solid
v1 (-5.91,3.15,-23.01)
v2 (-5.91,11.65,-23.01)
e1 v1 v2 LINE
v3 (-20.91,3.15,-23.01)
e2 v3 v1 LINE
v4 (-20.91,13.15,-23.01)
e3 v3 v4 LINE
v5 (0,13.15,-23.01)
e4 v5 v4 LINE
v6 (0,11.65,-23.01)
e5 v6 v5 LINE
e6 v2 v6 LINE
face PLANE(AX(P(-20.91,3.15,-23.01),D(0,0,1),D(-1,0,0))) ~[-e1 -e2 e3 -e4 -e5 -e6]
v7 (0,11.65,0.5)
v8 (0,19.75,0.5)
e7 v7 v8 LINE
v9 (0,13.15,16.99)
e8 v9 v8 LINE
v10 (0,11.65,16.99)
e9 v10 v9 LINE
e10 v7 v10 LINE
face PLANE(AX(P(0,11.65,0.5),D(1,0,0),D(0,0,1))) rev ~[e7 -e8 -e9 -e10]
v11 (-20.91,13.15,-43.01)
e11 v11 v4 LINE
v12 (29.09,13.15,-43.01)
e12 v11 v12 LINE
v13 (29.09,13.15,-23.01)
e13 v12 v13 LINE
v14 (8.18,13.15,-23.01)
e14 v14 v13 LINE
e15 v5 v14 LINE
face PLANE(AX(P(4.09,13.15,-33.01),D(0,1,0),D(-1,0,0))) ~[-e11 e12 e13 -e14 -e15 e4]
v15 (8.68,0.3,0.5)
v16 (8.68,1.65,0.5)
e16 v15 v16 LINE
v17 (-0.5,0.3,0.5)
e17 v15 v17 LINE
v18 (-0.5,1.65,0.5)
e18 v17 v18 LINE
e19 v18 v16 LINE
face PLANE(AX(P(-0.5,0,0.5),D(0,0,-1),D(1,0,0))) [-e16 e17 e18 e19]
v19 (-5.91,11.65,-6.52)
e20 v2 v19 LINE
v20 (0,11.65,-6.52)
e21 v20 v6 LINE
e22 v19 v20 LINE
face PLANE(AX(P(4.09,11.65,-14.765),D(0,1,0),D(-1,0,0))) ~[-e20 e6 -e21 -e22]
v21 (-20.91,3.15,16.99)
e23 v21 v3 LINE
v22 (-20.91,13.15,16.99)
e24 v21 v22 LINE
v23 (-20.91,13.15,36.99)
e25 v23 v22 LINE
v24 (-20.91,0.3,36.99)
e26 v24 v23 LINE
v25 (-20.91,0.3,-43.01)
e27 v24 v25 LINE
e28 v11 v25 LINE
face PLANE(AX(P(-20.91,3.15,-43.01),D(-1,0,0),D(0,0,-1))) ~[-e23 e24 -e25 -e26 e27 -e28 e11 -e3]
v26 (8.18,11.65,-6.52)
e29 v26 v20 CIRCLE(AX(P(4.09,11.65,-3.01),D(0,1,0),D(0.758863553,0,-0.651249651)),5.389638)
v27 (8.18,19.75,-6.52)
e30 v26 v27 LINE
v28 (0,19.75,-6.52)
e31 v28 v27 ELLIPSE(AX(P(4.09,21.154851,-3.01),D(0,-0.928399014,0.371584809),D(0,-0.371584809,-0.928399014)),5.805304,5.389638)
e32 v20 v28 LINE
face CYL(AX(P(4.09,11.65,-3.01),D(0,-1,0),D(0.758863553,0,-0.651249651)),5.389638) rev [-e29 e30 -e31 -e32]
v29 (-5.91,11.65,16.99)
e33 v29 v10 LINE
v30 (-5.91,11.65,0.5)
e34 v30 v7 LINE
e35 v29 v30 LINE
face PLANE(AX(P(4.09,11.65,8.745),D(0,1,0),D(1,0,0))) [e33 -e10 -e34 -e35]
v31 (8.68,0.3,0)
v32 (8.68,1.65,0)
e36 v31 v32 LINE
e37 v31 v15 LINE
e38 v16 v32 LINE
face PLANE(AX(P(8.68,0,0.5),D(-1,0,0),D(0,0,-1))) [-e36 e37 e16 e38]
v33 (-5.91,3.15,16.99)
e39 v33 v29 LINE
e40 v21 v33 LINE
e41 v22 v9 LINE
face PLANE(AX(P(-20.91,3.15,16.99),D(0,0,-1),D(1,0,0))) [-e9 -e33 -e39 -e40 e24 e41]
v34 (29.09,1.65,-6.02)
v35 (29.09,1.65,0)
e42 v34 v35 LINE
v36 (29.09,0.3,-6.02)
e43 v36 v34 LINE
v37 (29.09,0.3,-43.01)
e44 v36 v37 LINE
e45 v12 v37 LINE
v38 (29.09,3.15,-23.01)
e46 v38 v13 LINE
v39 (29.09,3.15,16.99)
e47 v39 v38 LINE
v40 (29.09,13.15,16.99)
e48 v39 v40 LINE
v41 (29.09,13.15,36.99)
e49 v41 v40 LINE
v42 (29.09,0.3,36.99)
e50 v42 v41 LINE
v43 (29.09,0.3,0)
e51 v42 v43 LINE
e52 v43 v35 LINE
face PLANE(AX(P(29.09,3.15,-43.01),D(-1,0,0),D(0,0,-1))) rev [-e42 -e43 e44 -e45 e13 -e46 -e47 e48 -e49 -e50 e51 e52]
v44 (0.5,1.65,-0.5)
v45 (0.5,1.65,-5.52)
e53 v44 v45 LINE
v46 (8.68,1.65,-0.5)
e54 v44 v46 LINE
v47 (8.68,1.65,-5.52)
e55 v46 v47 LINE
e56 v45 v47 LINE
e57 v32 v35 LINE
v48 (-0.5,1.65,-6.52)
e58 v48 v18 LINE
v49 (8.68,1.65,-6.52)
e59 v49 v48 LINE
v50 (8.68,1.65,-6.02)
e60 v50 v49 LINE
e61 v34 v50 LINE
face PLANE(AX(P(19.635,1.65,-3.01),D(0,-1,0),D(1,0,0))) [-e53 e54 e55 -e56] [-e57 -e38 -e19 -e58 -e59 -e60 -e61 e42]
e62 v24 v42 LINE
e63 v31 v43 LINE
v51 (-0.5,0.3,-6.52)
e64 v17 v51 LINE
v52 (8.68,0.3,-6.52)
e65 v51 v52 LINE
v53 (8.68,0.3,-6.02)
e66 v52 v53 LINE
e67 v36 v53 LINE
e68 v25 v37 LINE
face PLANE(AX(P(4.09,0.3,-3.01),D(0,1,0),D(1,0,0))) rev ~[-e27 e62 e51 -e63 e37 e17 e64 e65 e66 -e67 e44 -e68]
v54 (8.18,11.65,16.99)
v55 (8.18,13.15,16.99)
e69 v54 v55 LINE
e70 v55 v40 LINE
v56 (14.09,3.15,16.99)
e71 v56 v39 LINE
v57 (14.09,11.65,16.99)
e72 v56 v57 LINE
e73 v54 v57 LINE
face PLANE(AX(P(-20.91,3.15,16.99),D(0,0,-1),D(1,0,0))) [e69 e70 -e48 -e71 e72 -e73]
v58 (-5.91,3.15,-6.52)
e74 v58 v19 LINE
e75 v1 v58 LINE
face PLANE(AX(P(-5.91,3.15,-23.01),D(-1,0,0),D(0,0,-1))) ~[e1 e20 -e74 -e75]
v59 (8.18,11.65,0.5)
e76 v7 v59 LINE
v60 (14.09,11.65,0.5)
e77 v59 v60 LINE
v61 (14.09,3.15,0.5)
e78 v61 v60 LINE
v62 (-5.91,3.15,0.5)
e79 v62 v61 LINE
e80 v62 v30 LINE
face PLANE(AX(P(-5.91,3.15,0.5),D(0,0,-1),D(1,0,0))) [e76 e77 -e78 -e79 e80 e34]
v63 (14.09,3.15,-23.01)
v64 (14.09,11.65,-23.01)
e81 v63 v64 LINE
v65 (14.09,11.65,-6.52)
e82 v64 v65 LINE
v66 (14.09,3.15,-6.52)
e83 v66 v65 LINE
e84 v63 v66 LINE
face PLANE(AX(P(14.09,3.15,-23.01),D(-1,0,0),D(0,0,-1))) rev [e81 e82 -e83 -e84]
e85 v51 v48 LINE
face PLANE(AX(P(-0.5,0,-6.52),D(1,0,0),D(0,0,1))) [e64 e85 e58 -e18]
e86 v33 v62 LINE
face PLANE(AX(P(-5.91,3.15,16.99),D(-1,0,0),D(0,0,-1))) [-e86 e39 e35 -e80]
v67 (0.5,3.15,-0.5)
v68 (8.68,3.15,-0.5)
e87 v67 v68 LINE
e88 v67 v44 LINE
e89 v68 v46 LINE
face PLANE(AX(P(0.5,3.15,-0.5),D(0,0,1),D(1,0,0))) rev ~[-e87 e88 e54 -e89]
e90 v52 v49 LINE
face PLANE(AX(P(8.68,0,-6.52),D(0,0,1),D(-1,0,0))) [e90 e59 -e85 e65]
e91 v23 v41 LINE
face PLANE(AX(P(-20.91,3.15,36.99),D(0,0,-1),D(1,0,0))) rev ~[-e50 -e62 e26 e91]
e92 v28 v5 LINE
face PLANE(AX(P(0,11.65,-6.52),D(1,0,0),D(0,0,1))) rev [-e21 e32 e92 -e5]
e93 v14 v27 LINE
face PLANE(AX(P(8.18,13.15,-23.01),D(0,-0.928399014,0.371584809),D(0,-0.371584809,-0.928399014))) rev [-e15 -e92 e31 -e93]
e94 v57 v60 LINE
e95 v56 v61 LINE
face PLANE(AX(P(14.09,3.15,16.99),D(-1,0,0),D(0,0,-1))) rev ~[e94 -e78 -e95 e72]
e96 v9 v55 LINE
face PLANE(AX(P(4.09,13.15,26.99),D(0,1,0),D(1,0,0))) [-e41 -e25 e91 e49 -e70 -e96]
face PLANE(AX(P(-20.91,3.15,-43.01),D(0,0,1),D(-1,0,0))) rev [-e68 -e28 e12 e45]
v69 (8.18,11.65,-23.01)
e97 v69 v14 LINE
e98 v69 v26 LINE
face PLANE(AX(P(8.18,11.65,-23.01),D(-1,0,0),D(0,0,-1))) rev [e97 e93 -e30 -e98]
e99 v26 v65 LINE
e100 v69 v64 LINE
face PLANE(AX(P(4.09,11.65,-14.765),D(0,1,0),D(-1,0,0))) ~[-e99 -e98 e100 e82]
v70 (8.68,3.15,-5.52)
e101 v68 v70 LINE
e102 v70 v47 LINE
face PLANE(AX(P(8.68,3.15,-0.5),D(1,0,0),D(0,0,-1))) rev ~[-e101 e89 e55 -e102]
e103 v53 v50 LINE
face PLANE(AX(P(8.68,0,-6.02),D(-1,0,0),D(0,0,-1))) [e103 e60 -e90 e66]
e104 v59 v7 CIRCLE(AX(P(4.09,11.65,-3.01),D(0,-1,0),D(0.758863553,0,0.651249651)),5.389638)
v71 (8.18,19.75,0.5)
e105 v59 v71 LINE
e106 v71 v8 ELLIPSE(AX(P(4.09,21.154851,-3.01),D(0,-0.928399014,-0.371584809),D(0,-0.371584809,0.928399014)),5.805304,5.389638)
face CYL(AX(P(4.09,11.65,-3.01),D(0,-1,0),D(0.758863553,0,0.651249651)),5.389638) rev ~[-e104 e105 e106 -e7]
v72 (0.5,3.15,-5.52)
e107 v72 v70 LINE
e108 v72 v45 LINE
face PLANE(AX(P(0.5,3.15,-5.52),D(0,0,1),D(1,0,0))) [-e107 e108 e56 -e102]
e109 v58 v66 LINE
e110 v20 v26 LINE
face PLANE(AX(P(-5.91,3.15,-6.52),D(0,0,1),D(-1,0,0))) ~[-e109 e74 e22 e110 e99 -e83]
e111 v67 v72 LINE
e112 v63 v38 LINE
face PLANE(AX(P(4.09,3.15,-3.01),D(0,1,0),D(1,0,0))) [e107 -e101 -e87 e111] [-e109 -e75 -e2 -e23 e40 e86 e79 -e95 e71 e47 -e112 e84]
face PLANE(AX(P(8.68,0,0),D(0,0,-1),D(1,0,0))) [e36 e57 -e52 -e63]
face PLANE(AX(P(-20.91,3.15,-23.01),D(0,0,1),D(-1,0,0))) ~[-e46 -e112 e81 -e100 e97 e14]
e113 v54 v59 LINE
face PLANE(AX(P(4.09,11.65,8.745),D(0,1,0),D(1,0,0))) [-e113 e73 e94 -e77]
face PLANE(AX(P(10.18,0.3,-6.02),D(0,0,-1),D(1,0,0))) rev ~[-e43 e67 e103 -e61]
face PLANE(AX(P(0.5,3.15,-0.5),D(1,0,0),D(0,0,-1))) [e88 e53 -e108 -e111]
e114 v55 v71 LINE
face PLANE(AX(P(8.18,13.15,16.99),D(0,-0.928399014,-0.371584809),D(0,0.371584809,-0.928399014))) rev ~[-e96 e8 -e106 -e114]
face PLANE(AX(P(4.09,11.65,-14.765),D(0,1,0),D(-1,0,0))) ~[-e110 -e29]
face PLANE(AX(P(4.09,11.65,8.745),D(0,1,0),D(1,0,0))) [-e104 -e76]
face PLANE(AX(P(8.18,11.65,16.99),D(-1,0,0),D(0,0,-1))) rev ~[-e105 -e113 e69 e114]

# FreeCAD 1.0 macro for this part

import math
import FreeCAD as App
import Part
import Sketcher

V = App.Vector

doc = App.newDocument("Part")
body = doc.addObject("PartDesign::Body", "Body")

sketch1 = doc.addObject("Sketcher::SketchObject", "Sketch")
body.addObject(sketch1)
sketch1.AttachmentSupport = (doc.XZ_Plane, [""])
sketch1.MapMode = "FlatFace"
sketch1.addGeometry([
    Part.LineSegment(V(8.7, 0.5, 0), V(-0.5, 0.5, 0)),
    Part.LineSegment(V(-0.5, 0.5, 0), V(-0.5, -6.5, 0)),
    Part.LineSegment(V(-0.5, -6.5, 0), V(8.7, -6.5, 0)),
    Part.LineSegment(V(8.7, -6.5, 0), V(8.7, -6, 0)),
    Part.LineSegment(V(8.7, -6, 0), V(10.2, -6, 0)),
    Part.LineSegment(V(10.2, -6, 0), V(10.2, -8, 0)),
    Part.LineSegment(V(10.2, -8, 0), V(-2, -8, 0)),
    Part.LineSegment(V(-2, -8, 0), V(-2, 2, 0)),
    Part.LineSegment(V(-2, 2, 0), V(10.2, 2, 0)),
    Part.LineSegment(V(10.2, 2, 0), V(10.2, 0, 0)),
    Part.LineSegment(V(10.2, 0, 0), V(8.7, 0, 0)),
    Part.LineSegment(V(8.7, 0, 0), V(8.7, 0.5, 0)),
], False)
sketch1.addConstraint([
    Sketcher.Constraint("Coincident", 0, 2, 1, 1),
    Sketcher.Constraint("Coincident", 1, 2, 2, 1),
    Sketcher.Constraint("Coincident", 2, 2, 3, 1),
    Sketcher.Constraint("Coincident", 3, 2, 4, 1),
    Sketcher.Constraint("Coincident", 4, 2, 5, 1),
    Sketcher.Constraint("Coincident", 5, 2, 6, 1),
    Sketcher.Constraint("Coincident", 6, 2, 7, 1),
    Sketcher.Constraint("Coincident", 7, 2, 8, 1),
    Sketcher.Constraint("Coincident", 8, 2, 9, 1),
    Sketcher.Constraint("Coincident", 9, 2, 10, 1),
    Sketcher.Constraint("Coincident", 10, 2, 11, 1),
    Sketcher.Constraint("Coincident", 11, 2, 0, 1),
    Sketcher.Constraint("Horizontal", 0),
    Sketcher.Constraint("Vertical", 1),
    Sketcher.Constraint("Horizontal", 2),
    Sketcher.Constraint("Vertical", 3),
    Sketcher.Constraint("Horizontal", 4),
    Sketcher.Constraint("Vertical", 5),
    Sketcher.Constraint("Horizontal", 6),
    Sketcher.Constraint("Vertical", 7),
    Sketcher.Constraint("Horizontal", 8),
    Sketcher.Constraint("Vertical", 9),
    Sketcher.Constraint("Horizontal", 10),
    Sketcher.Constraint("Vertical", 11),
    Sketcher.Constraint("PointOnObject", 9, 2, -1),
    Sketcher.Constraint("Vertical", 5, 2, 8, 2),
    Sketcher.Constraint("Vertical", 3, 2, 10, 2),
    Sketcher.Constraint("Equal", 5, 9),
    Sketcher.Constraint("Equal", 3, 11),
    Sketcher.Constraint("DistanceY", 5, 2, 5, 1, 2.0),
    Sketcher.Constraint("DistanceX", 4, 1, 4, 2, 1.5),
    Sketcher.Constraint("DistanceY", 3, 1, 3, 2, 0.5),
    Sketcher.Constraint("DistanceX", 6, 2, -1, 1, 2.0),
    Sketcher.Constraint("DistanceX", 0, 2, 0, 1, 9.18),
    Sketcher.Constraint("DistanceX", 6, 2, 6, 1, 12.18),
    Sketcher.Constraint("DistanceY", 1, 2, 1, 1, 7.02),
])
pad1 = doc.addObject("PartDesign::Pad", "Pad")
body.addObject(pad1)
pad1.Profile = sketch1
pad1.Length = 3.15
pad1.Reversed = True

sketch2 = doc.addObject("Sketcher::SketchObject", "Sketch001")
body.addObject(sketch2)
sketch2.AttachmentSupport = (doc.XZ_Plane, [""])
sketch2.MapMode = "FlatFace"
sketch2.AttachmentOffset = App.Placement(V(0, 0, -3.15), App.Rotation())
sketch2.addGeometry([
    Part.LineSegment(V(-2, -8, 0), V(-2, 2, 0)),
    Part.LineSegment(V(-2, 2, 0), V(10, 2, 0)),
    Part.LineSegment(V(10, 2, 0), V(10, -8, 0)),
    Part.LineSegment(V(10, -8, 0), V(-2, -8, 0)),
    Part.LineSegment(V(9, 0, 0), V(0, 0, 0)),
    Part.LineSegment(V(0, 0, 0), V(0, -6, 0)),
    Part.LineSegment(V(0, -6, 0), V(9, -6, 0)),
    Part.LineSegment(V(9, -6, 0), V(9, 0, 0)),
], False)
sketch2.addConstraint([
    Sketcher.Constraint("Coincident", 0, 2, 1, 1),
    Sketcher.Constraint("Coincident", 1, 2, 2, 1),
    Sketcher.Constraint("Coincident", 2, 2, 3, 1),
    Sketcher.Constraint("Coincident", 3, 2, 0, 1),
    Sketcher.Constraint("Coincident", 4, 2, 5, 1),
    Sketcher.Constraint("Coincident", 5, 2, 6, 1),
    Sketcher.Constraint("Coincident", 6, 2, 7, 1),
    Sketcher.Constraint("Coincident", 7, 2, 4, 1),
    Sketcher.Constraint("Vertical", 0),
    Sketcher.Constraint("Horizontal", 1),
    Sketcher.Constraint("Vertical", 2),
    Sketcher.Constraint("Horizontal", 3),
    Sketcher.Constraint("Horizontal", 4),
    Sketcher.Constraint("Vertical", 5),
    Sketcher.Constraint("Horizontal", 6),
    Sketcher.Constraint("Vertical", 7),
    Sketcher.Constraint("DistanceX", 0, 2, -1, 1, 2.0),
    Sketcher.Constraint("DistanceY", -1, 1, 0, 2, 2.0),
    Sketcher.Constraint("DistanceX", 1, 1, 1, 2, 12.18),
    Sketcher.Constraint("DistanceX", 4, 2, 4, 1, 8.18),
    Sketcher.Constraint("DistanceY", 0, 1, 0, 2, 10.02),
    Sketcher.Constraint("DistanceY", 5, 2, 5, 1, 5.02),
    Sketcher.Constraint("DistanceX", -1, 1, 4, 2, 0.5),
    Sketcher.Constraint("DistanceY", 4, 2, -1, 1, 0.5),
])
pad2 = doc.addObject("PartDesign::Pad", "Pad001")
body.addObject(pad2)
pad2.Profile = sketch2
pad2.Length = 1.5

sketch3 = doc.addObject("Sketcher::SketchObject", "Sketch002")
body.addObject(sketch3)
sketch3.AttachmentSupport = (doc.XZ_Plane, [""])
sketch3.MapMode = "FlatFace"
sketch3.addGeometry([
    Part.LineSegment(V(-2, 2, 0), V(-2, -8, 0)),
    Part.LineSegment(V(-2, -8, 0), V(10, -8, 0)),
    Part.LineSegment(V(10, -8, 0), V(10, 2, 0)),
    Part.LineSegment(V(10, 2, 0), V(-2, 2, 0)),
], False)
sketch3.addConstraint([
    Sketcher.Constraint("Coincident", 0, 2, 1, 1),
    Sketcher.Constraint("Coincident", 1, 2, 2, 1),
    Sketcher.Constraint("Coincident", 2, 2, 3, 1),
    Sketcher.Constraint("Coincident", 3, 2, 0, 1),
    Sketcher.Constraint("Vertical", 0),
    Sketcher.Constraint("Horizontal", 1),
    Sketcher.Constraint("Vertical", 2),
    Sketcher.Constraint("Horizontal", 3),
    Sketcher.Constraint("DistanceX", 0, 2, -1, 1, 2.0),
    Sketcher.Constraint("DistanceY", -1, 1, 2, 2, 2.0),
    Sketcher.Constraint("DistanceX", 1, 1, 1, 2, 12.18),
    Sketcher.Constraint("DistanceY", 0, 2, 0, 1, 10.02),
])
pocket1 = doc.addObject("PartDesign::Pocket", "Pocket")
body.addObject(pocket1)
pocket1.Profile = sketch3
pocket1.Length = 0.3

sketch4 = doc.addObject("Sketcher::SketchObject", "Sketch003")
body.addObject(sketch4)
sketch4.AttachmentSupport = (doc.XZ_Plane, [""])
sketch4.MapMode = "FlatFace"
sketch4.AttachmentOffset = App.Placement(V(0, 0, -3.15), App.Rotation())
sketch4.addGeometry([
    Part.LineSegment(V(-21, -43, 0), V(-21, 37, 0)),
    Part.LineSegment(V(-21, 37, 0), V(29, 37, 0)),
    Part.LineSegment(V(29, 37, 0), V(29, -43, 0)),
    Part.LineSegment(V(29, -43, 0), V(-21, -43, 0)),
    Part.LineSegment(V(10, 2, 0), V(-2, 2, 0)),
    Part.LineSegment(V(-2, 2, 0), V(-2, -8, 0)),
    Part.LineSegment(V(-2, -8, 0), V(10, -8, 0)),
    Part.LineSegment(V(10, -8, 0), V(10, 2, 0)),
], False)
sketch4.addConstraint([
    Sketcher.Constraint("Coincident", 0, 2, 1, 1),
    Sketcher.Constraint("Coincident", 1, 2, 2, 1),
    Sketcher.Constraint("Coincident", 2, 2, 3, 1),
    Sketcher.Constraint("Coincident", 3, 2, 0, 1),
    Sketcher.Constraint("Coincident", 4, 2, 5, 1),
    Sketcher.Constraint("Coincident", 5, 2, 6, 1),
    Sketcher.Constraint("Coincident", 6, 2, 7, 1),
    Sketcher.Constraint("Coincident", 7, 2, 4, 1),
    Sketcher.Constraint("Vertical", 0),
    Sketcher.Constraint("Horizontal", 1),
    Sketcher.Constraint("Vertical", 2),
    Sketcher.Constraint("Horizontal", 3),
    Sketcher.Constraint("Horizontal", 4),
    Sketcher.Constraint("Vertical", 5),
    Sketcher.Constraint("Horizontal", 6),
    Sketcher.Constraint("Vertical", 7),
    Sketcher.Constraint("DistanceX", 1, 1, 1, 2, 50.0),
    Sketcher.Constraint("DistanceY", 0, 1, 0, 2, 80.0),
    Sketcher.Constraint("DistanceX", 4, 2, -1, 1, 2.0),
    Sketcher.Constraint("DistanceY", -1, 1, 4, 2, 2.0),
    Sketcher.Constraint("DistanceX", 4, 2, 4, 1, 12.18),
    Sketcher.Constraint("DistanceY", 5, 2, 5, 1, 10.02),
    Sketcher.Constraint("DistanceX", 0, 2, -1, 1, 20.91),
    Sketcher.Constraint("DistanceY", -1, 1, 0, 2, 36.99),
])
pad3 = doc.addObject("PartDesign::Pad", "Pad002")
body.addObject(pad3)
pad3.Profile = sketch4
pad3.Length = 2.85

sketch5 = doc.addObject("Sketcher::SketchObject", "Sketch004")
body.addObject(sketch5)
sketch5.AttachmentSupport = (doc.XZ_Plane, [""])
sketch5.MapMode = "FlatFace"
sketch5.AttachmentOffset = App.Placement(V(0, 0, -3.15), App.Rotation())
sketch5.addGeometry([
    Part.LineSegment(V(-21, 17, 0), V(-21, 37, 0)),
    Part.LineSegment(V(-21, 37, 0), V(29, 37, 0)),
    Part.LineSegment(V(29, 37, 0), V(29, 17, 0)),
    Part.LineSegment(V(29, 17, 0), V(-21, 17, 0)),
], False)
sketch5.addConstraint([
    Sketcher.Constraint("Coincident", 0, 2, 1, 1),
    Sketcher.Constraint("Coincident", 1, 2, 2, 1),
    Sketcher.Constraint("Coincident", 2, 2, 3, 1),
    Sketcher.Constraint("Coincident", 3, 2, 0, 1),
    Sketcher.Constraint("Vertical", 0),
    Sketcher.Constraint("Horizontal", 1),
    Sketcher.Constraint("Vertical", 2),
    Sketcher.Constraint("Horizontal", 3),
    Sketcher.Constraint("DistanceX", 1, 1, 1, 2, 50.0),
    Sketcher.Constraint("DistanceY", 0, 1, 0, 2, 20.0),
    Sketcher.Constraint("DistanceX", 0, 2, -1, 1, 20.91),
    Sketcher.Constraint("DistanceY", -1, 1, 0, 2, 36.99),
])
pad4 = doc.addObject("PartDesign::Pad", "Pad003")
body.addObject(pad4)
pad4.Profile = sketch5
pad4.Length = 10
pad4.Reversed = True

sketch6 = doc.addObject("Sketcher::SketchObject", "Sketch005")
body.addObject(sketch6)
sketch6.AttachmentSupport = (doc.XZ_Plane, [""])
sketch6.MapMode = "FlatFace"
sketch6.AttachmentOffset = App.Placement(V(0, 0, -0.3), App.Rotation())
sketch6.addGeometry([
    Part.LineSegment(V(10, 0, 0), V(10, -6, 0)),
    Part.LineSegment(V(10, -6, 0), V(29, -6, 0)),
    Part.LineSegment(V(29, -6, 0), V(29, 0, 0)),
    Part.LineSegment(V(29, 0, 0), V(10, 0, 0)),
], False)
sketch6.addConstraint([
    Sketcher.Constraint("Coincident", 0, 2, 1, 1),
    Sketcher.Constraint("Coincident", 1, 2, 2, 1),
    Sketcher.Constraint("Coincident", 2, 2, 3, 1),
    Sketcher.Constraint("Coincident", 3, 2, 0, 1),
    Sketcher.Constraint("Vertical", 0),
    Sketcher.Constraint("Horizontal", 1),
    Sketcher.Constraint("Vertical", 2),
    Sketcher.Constraint("Horizontal", 3),
    Sketcher.Constraint("PointOnObject", 2, 2, -1),
    Sketcher.Constraint("DistanceX", 1, 1, 1, 2, 18.91),
    Sketcher.Constraint("DistanceY", 0, 2, 0, 1, 6.02),
    Sketcher.Constraint("DistanceX", -1, 1, 0, 2, 10.18),
])
pocket2 = doc.addObject("PartDesign::Pocket", "Pocket001")
body.addObject(pocket2)
pocket2.Profile = sketch6
pocket2.Length = 1.35

sketch7 = doc.addObject("Sketcher::SketchObject", "Sketch006")
body.addObject(sketch7)
sketch7.AttachmentSupport = (doc.XZ_Plane, [""])
sketch7.MapMode = "FlatFace"
sketch7.AttachmentOffset = App.Placement(V(0, 0, -3.15), App.Rotation())
sketch7.addGeometry([
    Part.LineSegment(V(-6, 0, 0), V(-6, 17, 0)),
    Part.LineSegment(V(-6, 17, 0), V(14, 17, 0)),
    Part.LineSegment(V(14, 17, 0), V(14, 0, 0)),
    Part.LineSegment(V(14, 0, 0), V(-6, 0, 0)),
], False)
sketch7.addConstraint([
    Sketcher.Constraint("Coincident", 0, 2, 1, 1),
    Sketcher.Constraint("Coincident", 1, 2, 2, 1),
    Sketcher.Constraint("Coincident", 2, 2, 3, 1),
    Sketcher.Constraint("Coincident", 3, 2, 0, 1),
    Sketcher.Constraint("Vertical", 0),
    Sketcher.Constraint("Horizontal", 1),
    Sketcher.Constraint("Vertical", 2),
    Sketcher.Constraint("Horizontal", 3),
    Sketcher.Constraint("DistanceX", 1, 1, 1, 2, 20.0),
    Sketcher.Constraint("DistanceY", 0, 1, 0, 2, 16.49),
    Sketcher.Constraint("DistanceY", -1, 1, 2, 2, 0.5),
    Sketcher.Constraint("DistanceX", 0, 2, -1, 1, 5.91),
])
pad5 = doc.addObject("PartDesign::Pad", "Pad004")
body.addObject(pad5)
pad5.Profile = sketch7
pad5.Length = 8.5
pad5.Reversed = True

sketch8 = doc.addObject("Sketcher::SketchObject", "Sketch007")
body.addObject(sketch8)
sketch8.AttachmentSupport = (doc.XZ_Plane, [""])
sketch8.MapMode = "FlatFace"
sketch8.AttachmentOffset = App.Placement(V(0, 0, -11.65), App.Rotation())
sketch8.addGeometry([
    Part.LineSegment(V(0, 0, 0), V(0, 17, 0)),
    Part.LineSegment(V(0, 17, 0), V(8, 17, 0)),
    Part.LineSegment(V(8, 17, 0), V(8, 0, 0)),
    Part.ArcOfCircle(Part.Circle(V(4, -3, 0), V(0, 0, 1), 5), math.radians(41), math.radians(139)),
], False)
sketch8.addConstraint([
    Sketcher.Constraint("Coincident", 0, 2, 1, 1),
    Sketcher.Constraint("Coincident", 1, 2, 2, 1),
    Sketcher.Constraint("Coincident", 2, 2, 3, 1),
    Sketcher.Constraint("Coincident", 3, 2, 0, 1),
    Sketcher.Constraint("Vertical", 0),
    Sketcher.Constraint("Horizontal", 1),
    Sketcher.Constraint("Vertical", 2),
    Sketcher.Constraint("PointOnObject", 0, 2, -2),
    Sketcher.Constraint("Horizontal", 2, 2, 3, 2),
    Sketcher.Constraint("DistanceY", 3, 3, 0, 2, 20.0),
    Sketcher.Constraint("DistanceX", 1, 1, 1, 2, 8.18),
    Sketcher.Constraint("DistanceY", 0, 1, 0, 2, 16.49),
    Sketcher.Constraint("DistanceY", -1, 1, 2, 2, 0.5),
])
pad6 = doc.addObject("PartDesign::Pad", "Pad005")
body.addObject(pad6)
pad6.Profile = sketch8
pad6.Length = 8.1
pad6.Reversed = True

sketch9 = doc.addObject("Sketcher::SketchObject", "Sketch008")
body.addObject(sketch9)
sketch9.AttachmentSupport = (doc.YZ_Plane, [""])
sketch9.MapMode = "FlatFace"
sketch9.AttachmentOffset = App.Placement(V(0, 0, 8.18), App.Rotation())
sketch9.addGeometry([
    Part.LineSegment(V(13, 17, 0), V(20, 0, 0)),
    Part.LineSegment(V(20, 0, 0), V(20, 17, 0)),
    Part.LineSegment(V(20, 17, 0), V(13, 17, 0)),
], False)
sketch9.addConstraint([
    Sketcher.Constraint("Coincident", 0, 2, 1, 1),
    Sketcher.Constraint("Coincident", 1, 2, 2, 1),
    Sketcher.Constraint("Coincident", 2, 2, 0, 1),
    Sketcher.Constraint("Vertical", 1),
    Sketcher.Constraint("Horizontal", 2),
    Sketcher.Constraint("DistanceX", 2, 2, 2, 1, 6.6),
    Sketcher.Constraint("DistanceY", 1, 1, 1, 2, 16.49),
    Sketcher.Constraint("DistanceY", -1, 1, 0, 2, 0.5),
    Sketcher.Constraint("DistanceX", -1, 1, 0, 2, 19.75),
])
pocket3 = doc.addObject("PartDesign::Pocket", "Pocket002")
body.addObject(pocket3)
pocket3.Profile = sketch9
pocket3.Length = 10
doc.recompute()

datumplane = doc.addObject("PartDesign::Plane", "DatumPlane")
body.addObject(datumplane)
datumplane.AttachmentSupport = (doc.XY_Plane, [""])
datumplane.MapMode = "FlatFace"
datumplane.AttachmentOffset = App.Placement(V(0, 0, -3.01), App.Rotation())
mirrored = doc.addObject("PartDesign::Mirrored", "Mirrored")
body.addObject(mirrored)
mirrored.Originals = [pad4, pad5, pad6, pocket3]
mirrored.MirrorPlane = (datumplane, [""])
body.Tip = mirrored

doc.recompute()
